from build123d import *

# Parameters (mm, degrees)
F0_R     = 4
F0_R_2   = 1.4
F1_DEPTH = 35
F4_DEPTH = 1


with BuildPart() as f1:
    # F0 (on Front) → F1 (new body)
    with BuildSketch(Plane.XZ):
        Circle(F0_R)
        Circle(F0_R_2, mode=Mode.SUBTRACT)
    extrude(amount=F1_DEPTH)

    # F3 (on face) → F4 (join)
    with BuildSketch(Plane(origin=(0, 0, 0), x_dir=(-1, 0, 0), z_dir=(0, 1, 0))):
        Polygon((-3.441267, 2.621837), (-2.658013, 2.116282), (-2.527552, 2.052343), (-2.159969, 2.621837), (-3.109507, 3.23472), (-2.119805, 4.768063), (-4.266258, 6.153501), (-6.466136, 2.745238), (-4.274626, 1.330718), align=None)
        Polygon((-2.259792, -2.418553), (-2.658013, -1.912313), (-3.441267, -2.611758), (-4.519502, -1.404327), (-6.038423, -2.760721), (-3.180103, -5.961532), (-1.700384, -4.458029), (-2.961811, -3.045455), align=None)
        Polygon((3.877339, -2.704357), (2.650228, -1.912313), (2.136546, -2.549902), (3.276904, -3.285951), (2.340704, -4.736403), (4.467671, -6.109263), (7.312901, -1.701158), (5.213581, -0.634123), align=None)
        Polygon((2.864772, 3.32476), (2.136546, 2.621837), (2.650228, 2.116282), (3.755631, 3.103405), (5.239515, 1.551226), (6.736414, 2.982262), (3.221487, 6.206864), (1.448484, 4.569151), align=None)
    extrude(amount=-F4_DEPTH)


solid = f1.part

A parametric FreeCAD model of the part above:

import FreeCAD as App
import Part
import Sketcher

V = App.Vector
Q = App.Units.Quantity

doc = App.newDocument("Part")
body = doc.addObject("PartDesign::Body", "Body")

sketch1 = body.newObject("Sketcher::SketchObject", "Sketch")
sketch1.AttachmentSupport = (doc.getObject("XZ_Plane"), [""])
sketch1.MapMode = "FlatFace"
sketch1.addGeometry(Part.Circle(V(0, 0, 0), V(0, 0, 1), 4), False)
sketch1.addGeometry(Part.Circle(V(0, 0, 0), V(0, 0, 1), 1.4), False)
sketch1.addConstraint(Sketcher.Constraint("Coincident", 0, 3, -1, 1))
sketch1.addConstraint(Sketcher.Constraint("Coincident", 1, 3, -1, 1))
sketch1.addConstraint(Sketcher.Constraint("Diameter", 0, Q("8 mm")))
sketch1.addConstraint(Sketcher.Constraint("Diameter", 1, Q("2.8 mm")))
pad1 = body.newObject("PartDesign::Pad", "Pad")
pad1.Profile = sketch1
pad1.Length = 35

sketch2 = body.newObject("Sketcher::SketchObject", "Sketch001")
sketch2.AttachmentSupport = (doc.getObject("XZ_Plane"), [""])
sketch2.MapMode = "FlatFace"
sketch2.addGeometry(Part.LineSegment(V(3.44, 2.62, 0), V(2.66, 2.12, 0)), False)
sketch2.addGeometry(Part.LineSegment(V(2.66, 2.12, 0), V(2.53, 2.05, 0)), False)
sketch2.addGeometry(Part.LineSegment(V(2.53, 2.05, 0), V(2.16, 2.62, 0)), False)
sketch2.addGeometry(Part.LineSegment(V(2.16, 2.62, 0), V(3.11, 3.23, 0)), False)
sketch2.addGeometry(Part.LineSegment(V(3.11, 3.23, 0), V(2.12, 4.77, 0)), False)
sketch2.addGeometry(Part.LineSegment(V(2.12, 4.77, 0), V(4.27, 6.15, 0)), False)
sketch2.addGeometry(Part.LineSegment(V(4.27, 6.15, 0), V(6.47, 2.75, 0)), False)
sketch2.addGeometry(Part.LineSegment(V(6.47, 2.75, 0), V(4.27, 1.33, 0)), False)
sketch2.addGeometry(Part.LineSegment(V(4.27, 1.33, 0), V(3.44, 2.62, 0)), False)
sketch2.addGeometry(Part.LineSegment(V(2.26, -2.42, 0), V(2.66, -1.91, 0)), False)
sketch2.addGeometry(Part.LineSegment(V(2.66, -1.91, 0), V(3.44, -2.61, 0)), False)
sketch2.addGeometry(Part.LineSegment(V(3.44, -2.61, 0), V(4.52, -1.4, 0)), False)
sketch2.addGeometry(Part.LineSegment(V(4.52, -1.4, 0), V(6.04, -2.76, 0)), False)
sketch2.addGeometry(Part.LineSegment(V(6.04, -2.76, 0), V(3.18, -5.96, 0)), False)
sketch2.addGeometry(Part.LineSegment(V(3.18, -5.96, 0), V(1.7, -4.46, 0)), False)
sketch2.addGeometry(Part.LineSegment(V(1.7, -4.46, 0), V(2.96, -3.05, 0)), False)
sketch2.addGeometry(Part.LineSegment(V(2.96, -3.05, 0), V(2.26, -2.42, 0)), False)
sketch2.addGeometry(Part.LineSegment(V(-3.88, -2.7, 0), V(-2.65, -1.91, 0)), False)
sketch2.addGeometry(Part.LineSegment(V(-2.65, -1.91, 0), V(-2.14, -2.55, 0)), False)
sketch2.addGeometry(Part.LineSegment(V(-2.14, -2.55, 0), V(-3.28, -3.29, 0)), False)
sketch2.addGeometry(Part.LineSegment(V(-3.28, -3.29, 0), V(-2.34, -4.74, 0)), False)
sketch2.addGeometry(Part.LineSegment(V(-2.34, -4.74, 0), V(-4.47, -6.11, 0)), False)
sketch2.addGeometry(Part.LineSegment(V(-4.47, -6.11, 0), V(-7.31, -1.7, 0)), False)
sketch2.addGeometry(Part.LineSegment(V(-7.31, -1.7, 0), V(-5.21, -0.63, 0)), False)
sketch2.addGeometry(Part.LineSegment(V(-5.21, -0.63, 0), V(-3.88, -2.7, 0)), False)
sketch2.addGeometry(Part.LineSegment(V(-2.86, 3.32, 0), V(-2.14, 2.62, 0)), False)
sketch2.addGeometry(Part.LineSegment(V(-2.14, 2.62, 0), V(-2.65, 2.12, 0)), False)
sketch2.addGeometry(Part.LineSegment(V(-2.65, 2.12, 0), V(-3.76, 3.1, 0)), False)
sketch2.addGeometry(Part.LineSegment(V(-3.76, 3.1, 0), V(-5.24, 1.55, 0)), False)
sketch2.addGeometry(Part.LineSegment(V(-5.24, 1.55, 0), V(-6.74, 2.98, 0)), False)
sketch2.addGeometry(Part.LineSegment(V(-6.74, 2.98, 0), V(-3.22, 6.21, 0)), False)
sketch2.addGeometry(Part.LineSegment(V(-3.22, 6.21, 0), V(-1.45, 4.57, 0)), False)
sketch2.addGeometry(Part.LineSegment(V(-1.45, 4.57, 0), V(-2.86, 3.32, 0)), False)
sketch2.addConstraint(Sketcher.Constraint("Coincident", 0, 2, 1, 1))
sketch2.addConstraint(Sketcher.Constraint("Coincident", 1, 2, 2, 1))
sketch2.addConstraint(Sketcher.Constraint("Coincident", 2, 2, 3, 1))
sketch2.addConstraint(Sketcher.Constraint("Coincident", 3, 2, 4, 1))
sketch2.addConstraint(Sketcher.Constraint("Coincident", 4, 2, 5, 1))
sketch2.addConstraint(Sketcher.Constraint("Coincident", 5, 2, 6, 1))
sketch2.addConstraint(Sketcher.Constraint("Coincident", 6, 2, 7, 1))
sketch2.addConstraint(Sketcher.Constraint("Coincident", 7, 2, 8, 1))
sketch2.addConstraint(Sketcher.Constraint("Coincident", 8, 2, 0, 1))
sketch2.addConstraint(Sketcher.Constraint("Coincident", 9, 2, 10, 1))
sketch2.addConstraint(Sketcher.Constraint("Coincident", 10, 2, 11, 1))
sketch2.addConstraint(Sketcher.Constraint("Coincident", 11, 2, 12, 1))
sketch2.addConstraint(Sketcher.Constraint("Coincident", 12, 2, 13, 1))
sketch2.addConstraint(Sketcher.Constraint("Coincident", 13, 2, 14, 1))
sketch2.addConstraint(Sketcher.Constraint("Coincident", 14, 2, 15, 1))
sketch2.addConstraint(Sketcher.Constraint("Coincident", 15, 2, 16, 1))
sketch2.addConstraint(Sketcher.Constraint("Coincident", 16, 2, 9, 1))
sketch2.addConstraint(Sketcher.Constraint("Coincident", 17, 2, 18, 1))
sketch2.addConstraint(Sketcher.Constraint("Coincident", 18, 2, 19, 1))
sketch2.addConstraint(Sketcher.Constraint("Coincident", 19, 2, 20, 1))
sketch2.addConstraint(Sketcher.Constraint("Coincident", 20, 2, 21, 1))
sketch2.addConstraint(Sketcher.Constraint("Coincident", 21, 2, 22, 1))
sketch2.addConstraint(Sketcher.Constraint("Coincident", 22, 2, 23, 1))
sketch2.addConstraint(Sketcher.Constraint("Coincident", 23, 2, 24, 1))
sketch2.addConstraint(Sketcher.Constraint("Coincident", 24, 2, 17, 1))
sketch2.addConstraint(Sketcher.Constraint("Coincident", 25, 2, 26, 1))
sketch2.addConstraint(Sketcher.Constraint("Coincident", 26, 2, 27, 1))
sketch2.addConstraint(Sketcher.Constraint("Coincident", 27, 2, 28, 1))
sketch2.addConstraint(Sketcher.Constraint("Coincident", 28, 2, 29, 1))
sketch2.addConstraint(Sketcher.Constraint("Coincident", 29, 2, 30, 1))
sketch2.addConstraint(Sketcher.Constraint("Coincident", 30, 2, 31, 1))
sketch2.addConstraint(Sketcher.Constraint("Coincident", 31, 2, 32, 1))
sketch2.addConstraint(Sketcher.Constraint("Coincident", 32, 2, 25, 1))
sketch2.addConstraint(Sketcher.Constraint("Perpendicular", 0, 2))
sketch2.addConstraint(Sketcher.Constraint("Perpendicular", 2, 3))
sketch2.addConstraint(Sketcher.Constraint("Perpendicular", 3, 4))
sketch2.addConstraint(Sketcher.Constraint("Perpendicular", 4, 5))
sketch2.addConstraint(Sketcher.Constraint("Perpendicular", 5, 6))
sketch2.addConstraint(Sketcher.Constraint("Perpendicular", 6, 7))
sketch2.addConstraint(Sketcher.Constraint("Perpendicular", 7, 8))
sketch2.addConstraint(Sketcher.Constraint("Perpendicular", 10, 11))
sketch2.addConstraint(Sketcher.Constraint("Perpendicular", 11, 12))
sketch2.addConstraint(Sketcher.Constraint("Perpendicular", 12, 13))
sketch2.addConstraint(Sketcher.Constraint("Parallel", 13, 15))
sketch2.addConstraint(Sketcher.Constraint("Perpendicular", 15, 16))
sketch2.addConstraint(Sketcher.Constraint("Perpendicular", 8, 17))
sketch2.addConstraint(Sketcher.Constraint("Parallel", 17, 19))
sketch2.addConstraint(Sketcher.Constraint("Perpendicular", 19, 20))
sketch2.addConstraint(Sketcher.Constraint("Perpendicular", 20, 21))
sketch2.addConstraint(Sketcher.Constraint("Perpendicular", 21, 22))
sketch2.addConstraint(Sketcher.Constraint("Parallel", 22, 24))
sketch2.addConstraint(Sketcher.Constraint("Perpendicular", 14, 26))
sketch2.addConstraint(Sketcher.Constraint("Parallel", 16, 27))
sketch2.addConstraint(Sketcher.Constraint("Perpendicular", 28, 29))
sketch2.addConstraint(Sketcher.Constraint("Horizontal", 2, 2, 8, 2))
sketch2.addConstraint(Sketcher.Constraint("Horizontal", 9, 2, 17, 2))
sketch2.addConstraint(Sketcher.Constraint("Horizontal", 8, 2, 25, 2))
sketch2.addConstraint(Sketcher.Constraint("Horizontal", 0, 2, 26, 2))
sketch2.addConstraint(Sketcher.Constraint("Vertical", 0, 2, 9, 2))
sketch2.addConstraint(Sketcher.Constraint("Vertical", 8, 2, 10, 2))
sketch2.addConstraint(Sketcher.Constraint("Vertical", 18, 2, 25, 2))
sketch2.addConstraint(Sketcher.Constraint("Vertical", 17, 2, 26, 2))
sketch2.addConstraint(Sketcher.Constraint("Distance", 27, Q("1.482001 mm")))
sketch2.addConstraint(Sketcher.Constraint("DistanceY", 7, 2, 3, 2, Q("1.904002 mm")))
sketch2.addConstraint(Sketcher.Constraint("Distance", 10, Q("1.0501 mm")))
sketch2.addConstraint(Sketcher.Constraint("Distance", 12, Q("2.0364 mm")))
sketch2.addConstraint(Sketcher.Constraint("DistanceY", -1, 1, 5, 2, Q("6.153501 mm")))
sketch2.addConstraint(Sketcher.Constraint("DistanceY", 18, 2, -1, 1, Q("2.549902 mm")))
sketch2.addConstraint(Sketcher.Constraint("DistanceX", 22, 2, -1, 1, Q("7.312901 mm")))
sketch2.addConstraint(Sketcher.Constraint("DistanceX", 4, 2, 3, 2, Q("0.989702 mm")))
sketch2.addConstraint(Sketcher.Constraint("DistanceY", 2, 2, 6, 2, Q("0.123401 mm")))
sketch2.addConstraint(Sketcher.Constraint("DistanceY", 10, 2, 1, 2, Q("4.664101 mm")))
sketch2.addConstraint(Sketcher.Constraint("DistanceX", 13, 2, 11, 2, Q("1.339399 mm")))
sketch2.addConstraint(Sketcher.Constraint("DistanceY", 14, 2, 11, 2, Q("3.053702 mm")))
sketch2.addConstraint(Sketcher.Constraint("DistanceY", 15, 2, 16, 2, Q("0.626902 mm")))
sketch2.addConstraint(Sketcher.Constraint("DistanceX", 19, 2, 20, 2, Q("0.9362 mm")))
sketch2.addConstraint(Sketcher.Constraint("DistanceY", 20, 2, 18, 2, Q("2.186501 mm")))
sketch2.addConstraint(Sketcher.Constraint("DistanceX", 29, 2, 28, 2, Q("1.496899 mm")))
sketch2.addConstraint(Sketcher.Constraint("Distance", 0, Q("0.932241 mm")))
sketch2.addConstraint(Sketcher.Constraint("Distance", 2, Q("0.677821 mm")))
sketch2.addConstraint(Sketcher.Constraint("Distance", 5, Q("2.55474 mm")))
sketch2.addConstraint(Sketcher.Constraint("Distance", 8, Q("1.536709 mm")))
sketch2.addConstraint(Sketcher.Constraint("Distance", 11, Q("1.61879 mm")))
sketch2.addConstraint(Sketcher.Constraint("Distance", 13, Q("4.291292 mm")))
sketch2.addConstraint(Sketcher.Constraint("Distance", 22, Q("5.246592 mm")))
sketch2.addConstraint(Sketcher.Constraint("DistanceX", -1, 1, 1, 2, Q("2.527552 mm")))
sketch2.addConstraint(Sketcher.Constraint("DistanceX", -1, 1, 15, 2, Q("2.961811 mm")))
sketch2.addConstraint(Sketcher.Constraint("DistanceX", 23, 2, -1, 1, Q("5.213581 mm")))
sketch2.addConstraint(Sketcher.Constraint("DistanceX", 24, 2, -1, 1, Q("3.877339 mm")))
sketch2.addConstraint(Sketcher.Constraint("DistanceX", 27, 2, -1, 1, Q("3.755631 mm")))
sketch2.addConstraint(Sketcher.Constraint("DistanceY", -1, 1, 29, 2, Q("2.982262 mm")))
sketch2.addConstraint(Sketcher.Constraint("DistanceY", -1, 1, 31, 2, Q("4.569151 mm")))
sketch2.addConstraint(Sketcher.Constraint("DistanceX", 32, 2, -1, 1, Q("2.864772 mm")))
sketch2.addConstraint(Sketcher.Constraint("DistanceY", -1, 1, 32, 2, Q("3.32476 mm")))
sketch2.addConstraint(Sketcher.Constraint("DistanceX", 14, 2, 13, 2, Q("1.479719 mm")))
sketch2.addConstraint(Sketcher.Constraint("DistanceY", 28, 2, 27, 2, Q("1.552179 mm")))
sketch2.addConstraint(Sketcher.Constraint("DistanceY", 27, 2, 30, 2, Q("3.103459 mm")))
sketch2.addConstraint(Sketcher.Constraint("DistanceX", 30, 2, 25, 2, Q("1.084941 mm")))
sketch2.addConstraint(Sketcher.Constraint("DistanceX", 25, 2, 31, 2, Q("0.688062 mm")))
pad2 = body.newObject("PartDesign::Pad", "Pad001")
pad2.Profile = sketch2
pad2.Length = 1

doc.recompute()
